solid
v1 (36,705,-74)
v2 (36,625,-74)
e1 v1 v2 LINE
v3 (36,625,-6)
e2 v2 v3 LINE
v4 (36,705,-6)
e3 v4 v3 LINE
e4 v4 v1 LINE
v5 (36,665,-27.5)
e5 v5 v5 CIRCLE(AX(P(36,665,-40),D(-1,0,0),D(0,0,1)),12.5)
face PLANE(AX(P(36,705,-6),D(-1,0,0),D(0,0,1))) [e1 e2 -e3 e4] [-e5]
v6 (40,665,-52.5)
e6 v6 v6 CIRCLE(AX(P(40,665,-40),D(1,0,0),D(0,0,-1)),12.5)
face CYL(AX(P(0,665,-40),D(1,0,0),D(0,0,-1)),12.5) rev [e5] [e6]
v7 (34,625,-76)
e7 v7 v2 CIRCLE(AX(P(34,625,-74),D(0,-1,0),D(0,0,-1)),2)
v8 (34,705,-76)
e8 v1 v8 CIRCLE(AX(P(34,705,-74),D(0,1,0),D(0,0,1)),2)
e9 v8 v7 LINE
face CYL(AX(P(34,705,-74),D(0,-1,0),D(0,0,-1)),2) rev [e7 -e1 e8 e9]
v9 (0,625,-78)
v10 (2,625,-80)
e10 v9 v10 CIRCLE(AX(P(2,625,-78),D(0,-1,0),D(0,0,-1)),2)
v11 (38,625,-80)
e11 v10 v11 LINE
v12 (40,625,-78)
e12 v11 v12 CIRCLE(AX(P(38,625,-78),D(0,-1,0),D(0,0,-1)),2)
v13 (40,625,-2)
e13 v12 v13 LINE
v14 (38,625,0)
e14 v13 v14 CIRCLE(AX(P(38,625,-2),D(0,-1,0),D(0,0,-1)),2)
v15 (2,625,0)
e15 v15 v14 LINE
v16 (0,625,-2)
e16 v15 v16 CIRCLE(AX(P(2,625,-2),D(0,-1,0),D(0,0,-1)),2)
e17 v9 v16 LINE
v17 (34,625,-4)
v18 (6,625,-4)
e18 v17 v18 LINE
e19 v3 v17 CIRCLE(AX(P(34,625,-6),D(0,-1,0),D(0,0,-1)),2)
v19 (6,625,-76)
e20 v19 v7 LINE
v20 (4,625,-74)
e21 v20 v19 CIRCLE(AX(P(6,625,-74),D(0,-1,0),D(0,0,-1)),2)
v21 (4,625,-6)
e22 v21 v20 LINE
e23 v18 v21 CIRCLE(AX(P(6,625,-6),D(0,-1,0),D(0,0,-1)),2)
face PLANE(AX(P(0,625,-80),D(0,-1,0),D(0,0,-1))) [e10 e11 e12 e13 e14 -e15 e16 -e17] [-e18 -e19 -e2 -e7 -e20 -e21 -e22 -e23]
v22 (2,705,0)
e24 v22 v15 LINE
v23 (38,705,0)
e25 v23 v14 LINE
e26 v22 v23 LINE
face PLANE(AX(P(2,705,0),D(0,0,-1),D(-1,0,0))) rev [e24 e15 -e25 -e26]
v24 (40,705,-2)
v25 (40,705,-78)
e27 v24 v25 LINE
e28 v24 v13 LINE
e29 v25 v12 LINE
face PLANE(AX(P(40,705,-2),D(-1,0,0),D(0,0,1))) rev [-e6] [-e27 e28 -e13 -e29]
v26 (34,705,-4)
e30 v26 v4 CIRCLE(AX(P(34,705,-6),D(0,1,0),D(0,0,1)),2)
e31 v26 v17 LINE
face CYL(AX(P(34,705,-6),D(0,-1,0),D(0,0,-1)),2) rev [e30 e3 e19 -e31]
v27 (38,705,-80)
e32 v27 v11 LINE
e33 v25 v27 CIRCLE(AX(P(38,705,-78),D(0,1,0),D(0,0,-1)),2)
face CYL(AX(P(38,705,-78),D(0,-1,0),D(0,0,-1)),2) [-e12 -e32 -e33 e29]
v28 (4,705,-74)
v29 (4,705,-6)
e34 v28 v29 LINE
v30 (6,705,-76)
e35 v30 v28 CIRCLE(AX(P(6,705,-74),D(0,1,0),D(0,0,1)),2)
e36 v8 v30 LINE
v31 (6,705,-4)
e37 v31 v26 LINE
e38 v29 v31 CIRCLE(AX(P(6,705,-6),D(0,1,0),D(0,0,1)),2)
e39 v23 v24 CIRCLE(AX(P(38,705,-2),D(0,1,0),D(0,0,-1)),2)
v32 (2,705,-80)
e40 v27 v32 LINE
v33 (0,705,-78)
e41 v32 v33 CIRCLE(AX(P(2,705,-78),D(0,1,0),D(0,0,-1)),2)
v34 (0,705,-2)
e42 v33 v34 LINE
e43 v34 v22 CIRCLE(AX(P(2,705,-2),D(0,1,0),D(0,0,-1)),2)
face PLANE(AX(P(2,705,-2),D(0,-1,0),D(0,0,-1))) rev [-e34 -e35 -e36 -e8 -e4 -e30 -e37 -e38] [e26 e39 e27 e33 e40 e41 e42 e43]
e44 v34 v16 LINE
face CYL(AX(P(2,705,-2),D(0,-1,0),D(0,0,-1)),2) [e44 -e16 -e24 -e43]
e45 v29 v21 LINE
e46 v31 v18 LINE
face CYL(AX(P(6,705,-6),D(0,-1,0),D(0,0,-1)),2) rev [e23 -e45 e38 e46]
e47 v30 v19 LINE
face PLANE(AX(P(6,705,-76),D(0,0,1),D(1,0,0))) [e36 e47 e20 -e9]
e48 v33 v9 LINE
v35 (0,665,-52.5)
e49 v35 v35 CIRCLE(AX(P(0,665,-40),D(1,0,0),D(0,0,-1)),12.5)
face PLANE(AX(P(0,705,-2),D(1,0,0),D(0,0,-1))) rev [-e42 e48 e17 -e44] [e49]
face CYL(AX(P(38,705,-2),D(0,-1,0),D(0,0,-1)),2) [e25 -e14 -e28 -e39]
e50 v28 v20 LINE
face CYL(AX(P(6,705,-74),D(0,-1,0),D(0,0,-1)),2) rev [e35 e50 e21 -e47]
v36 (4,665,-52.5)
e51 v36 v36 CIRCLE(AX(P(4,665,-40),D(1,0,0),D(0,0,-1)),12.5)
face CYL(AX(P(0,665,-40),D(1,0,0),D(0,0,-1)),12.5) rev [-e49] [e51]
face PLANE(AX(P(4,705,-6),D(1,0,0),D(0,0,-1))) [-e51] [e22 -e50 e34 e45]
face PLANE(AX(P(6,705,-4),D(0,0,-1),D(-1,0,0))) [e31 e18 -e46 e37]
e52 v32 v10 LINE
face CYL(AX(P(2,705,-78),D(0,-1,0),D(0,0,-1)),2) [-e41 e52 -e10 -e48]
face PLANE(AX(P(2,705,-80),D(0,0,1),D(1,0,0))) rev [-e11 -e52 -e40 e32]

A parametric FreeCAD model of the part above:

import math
import FreeCAD as App
import Part
import Sketcher

V = App.Vector


def add_polygon(sketch, points):
    """Adds a closed chain of lines whose ends are joined by coincident constraints."""
    first, n = sketch.GeometryCount, len(points)
    for a, b in zip(points, points[1:] + points[:1]):
        sketch.addGeometry(Part.LineSegment(App.Vector(*a, 0), App.Vector(*b, 0)), False)
    for i in range(n):
        sketch.addConstraint(Sketcher.Constraint("Coincident", first + i, 2, first + (i + 1) % n, 1))

doc = App.newDocument("Part")
params = doc.addObject("Spreadsheet::Sheet", "Params")
for row, (alias, value) in enumerate([
    ("sketch1_radius", "2 mm"),
    ("sketch1_width", "36 mm"),
    ("sketch1_width2", "28 mm"),
    ("sketch1_height", "76 mm"),
    ("sketch1_height2", "68 mm"),
    ("pad1_length", "705 mm"),
    ("sketch2_diameter", "25 mm"),
    ("sketch2_diameter2", "20.25 mm"),
    ("sketch3_width", "40 mm"),
    ("sketch3_height", "80 mm"),
], start=1):
    params.set(f"A{row}", alias)
    params.set(f"B{row}", "=" + value)
    params.setAlias(f"B{row}", alias)

body = doc.addObject("PartDesign::Body", "Body")

# Sketch on XZ plane
sketch1 = body.newObject("Sketcher::SketchObject", "Sketch")
sketch1.AttachmentSupport = (doc.getObject("XZ_Plane"), [""])
sketch1.MapMode = "FlatFace"
sketch1.addGeometry(Part.LineSegment(V(2, 0, 0), V(38, 0, 0)), False)
sketch1.addGeometry(Part.ArcOfCircle(Part.Circle(V(38, -2, 0), V(0, 0, 1), 2), math.radians(0), math.radians(90)), False)
sketch1.addGeometry(Part.LineSegment(V(40, -2, 0), V(40, -78, 0)), False)
sketch1.addGeometry(Part.ArcOfCircle(Part.Circle(V(38, -78, 0), V(0, 0, 1), 2), math.radians(-90), math.radians(0)), False)
sketch1.addGeometry(Part.LineSegment(V(38, -80, 0), V(2, -80, 0)), False)
sketch1.addGeometry(Part.ArcOfCircle(Part.Circle(V(2, -78, 0), V(0, 0, 1), 2), math.radians(-180), math.radians(-90)), False)
sketch1.addGeometry(Part.LineSegment(V(0, -78, 0), V(0, -2, 0)), False)
sketch1.addGeometry(Part.ArcOfCircle(Part.Circle(V(2, -2, 0), V(0, 0, 1), 2), math.radians(90), math.radians(180)), False)
sketch1.addGeometry(Part.LineSegment(V(34, -4, 0), V(6, -4, 0)), False)
sketch1.addGeometry(Part.ArcOfCircle(Part.Circle(V(6, -6, 0), V(0, 0, 1), 2), math.radians(90), math.radians(180)), False)
sketch1.addGeometry(Part.LineSegment(V(4, -6, 0), V(4, -74, 0)), False)
sketch1.addGeometry(Part.ArcOfCircle(Part.Circle(V(6, -74, 0), V(0, 0, 1), 2), math.radians(-180), math.radians(-90)), False)
sketch1.addGeometry(Part.LineSegment(V(6, -76, 0), V(34, -76, 0)), False)
sketch1.addGeometry(Part.ArcOfCircle(Part.Circle(V(34, -74, 0), V(0, 0, 1), 2), math.radians(-90), math.radians(0)), False)
sketch1.addGeometry(Part.LineSegment(V(36, -74, 0), V(36, -6, 0)), False)
sketch1.addGeometry(Part.ArcOfCircle(Part.Circle(V(34, -6, 0), V(0, 0, 1), 2), math.radians(0), math.radians(90)), False)
sketch1.addConstraint(Sketcher.Constraint("Tangent", 0, 2, 1, 2))
sketch1.addConstraint(Sketcher.Constraint("Tangent", 1, 1, 2, 1))
sketch1.addConstraint(Sketcher.Constraint("Tangent", 2, 2, 3, 2))
sketch1.addConstraint(Sketcher.Constraint("Tangent", 3, 1, 4, 1))
sketch1.addConstraint(Sketcher.Constraint("Tangent", 4, 2, 5, 2))
sketch1.addConstraint(Sketcher.Constraint("Tangent", 5, 1, 6, 1))
sketch1.addConstraint(Sketcher.Constraint("Tangent", 6, 2, 7, 2))
sketch1.addConstraint(Sketcher.Constraint("Tangent", 7, 1, 0, 1))
sketch1.addConstraint(Sketcher.Constraint("Tangent", 8, 2, 9, 1))
sketch1.addConstraint(Sketcher.Constraint("Tangent", 9, 2, 10, 1))
sketch1.addConstraint(Sketcher.Constraint("Tangent", 10, 2, 11, 1))
sketch1.addConstraint(Sketcher.Constraint("Tangent", 11, 2, 12, 1))
sketch1.addConstraint(Sketcher.Constraint("Tangent", 12, 2, 13, 1))
sketch1.addConstraint(Sketcher.Constraint("Tangent", 13, 2, 14, 1))
sketch1.addConstraint(Sketcher.Constraint("Tangent", 14, 2, 15, 1))
sketch1.addConstraint(Sketcher.Constraint("Tangent", 15, 2, 8, 1))
sketch1.addConstraint(Sketcher.Constraint("Horizontal", 0))
sketch1.addConstraint(Sketcher.Constraint("Vertical", 2))
sketch1.addConstraint(Sketcher.Constraint("Horizontal", 4))
sketch1.addConstraint(Sketcher.Constraint("Vertical", 6))
sketch1.addConstraint(Sketcher.Constraint("Horizontal", 8))
sketch1.addConstraint(Sketcher.Constraint("Vertical", 10))
sketch1.addConstraint(Sketcher.Constraint("Horizontal", 12))
sketch1.addConstraint(Sketcher.Constraint("Vertical", 14))
sketch1.addConstraint(Sketcher.Constraint("Equal", 1, 3))
sketch1.addConstraint(Sketcher.Constraint("Equal", 3, 5))
sketch1.addConstraint(Sketcher.Constraint("Equal", 5, 7))
sketch1.addConstraint(Sketcher.Constraint("Equal", 7, 9))
sketch1.addConstraint(Sketcher.Constraint("Equal", 9, 11))
sketch1.addConstraint(Sketcher.Constraint("Equal", 11, 13))
sketch1.addConstraint(Sketcher.Constraint("Equal", 13, 15))
sketch1.addConstraint(Sketcher.Constraint("PointOnObject", 0, 2, -1))
sketch1.addConstraint(Sketcher.Constraint("PointOnObject", 5, 1, -2))
sketch1.addConstraint(Sketcher.Constraint("Radius", 1, 2.0))
sketch1.addConstraint(Sketcher.Constraint("DistanceX", 0, 1, 0, 2, 36.0))
sketch1.addConstraint(Sketcher.Constraint("DistanceX", 8, 2, 8, 1, 28.0))
sketch1.addConstraint(Sketcher.Constraint("DistanceY", 2, 2, 2, 1, 76.0))
sketch1.addConstraint(Sketcher.Constraint("DistanceY", 10, 2, 10, 1, 68.0))
sketch1.addConstraint(Sketcher.Constraint("DistanceX", -1, 1, 9, 3, 6.0))
sketch1.addConstraint(Sketcher.Constraint("DistanceY", 9, 3, -1, 1, 6.0))
sketch1.setExpression("Constraints[33]", "Params.sketch1_radius")
sketch1.setExpression("Constraints[34]", "Params.sketch1_width")
sketch1.setExpression("Constraints[35]", "Params.sketch1_width2")
sketch1.setExpression("Constraints[36]", "Params.sketch1_height")
sketch1.setExpression("Constraints[37]", "Params.sketch1_height2")
pad1 = body.newObject("PartDesign::Pad", "Pad")
pad1.Profile = sketch1
pad1.setExpression("Length", "Params.pad1_length")
pad1.Reversed = True

# Sketch on YZ plane
sketch2 = body.newObject("Sketcher::SketchObject", "Sketch001")
sketch2.AttachmentSupport = (doc.getObject("YZ_Plane"), [""])
sketch2.MapMode = "FlatFace"
sketch2.AttachmentOffset = App.Placement(V(0, 0, 40), App.Rotation())
sketch2.addGeometry(Part.Circle(V(90, -40, 0), V(0, 0, 1), 10), False)
sketch2.addGeometry(Part.Circle(V(665, -40, 0), V(0, 0, 1), 12), False)
sketch2.addConstraint(Sketcher.Constraint("Horizontal", 0, 3, 1, 3))
sketch2.addConstraint(Sketcher.Constraint("Diameter", 1, 25.0))
sketch2.addConstraint(Sketcher.Constraint("Diameter", 0, 20.25))
sketch2.addConstraint(Sketcher.Constraint("DistanceX", -1, 1, 0, 3, 90.0))
sketch2.addConstraint(Sketcher.Constraint("DistanceY", 0, 3, -1, 1, 40.0))
sketch2.addConstraint(Sketcher.Constraint("DistanceX", -1, 1, 1, 3, 665.0))
sketch2.setExpression("Constraints[1]", "Params.sketch2_diameter")
sketch2.setExpression("Constraints[2]", "Params.sketch2_diameter2")
pocket1 = body.newObject("PartDesign::Pocket", "Pocket")
pocket1.Profile = sketch2
pocket1.Type = "ThroughAll"

# Sketch on XY plane
sketch3 = body.newObject("Sketcher::SketchObject", "Sketch002")
sketch3.AttachmentSupport = (doc.getObject("XY_Plane"), [""])
sketch3.MapMode = "FlatFace"
add_polygon(sketch3, [(-294, 865), (-294, -34), (324, -34), (324, 865)])  # lines 0-3
add_polygon(sketch3, [(40, 625), (0, 625), (0, 705), (40, 705)])  # lines 4-7
sketch3.addConstraint(Sketcher.Constraint("Vertical", 0))
sketch3.addConstraint(Sketcher.Constraint("Horizontal", 1))
sketch3.addConstraint(Sketcher.Constraint("Vertical", 2))
sketch3.addConstraint(Sketcher.Constraint("Horizontal", 3))
sketch3.addConstraint(Sketcher.Constraint("Horizontal", 4))
sketch3.addConstraint(Sketcher.Constraint("Vertical", 5))
sketch3.addConstraint(Sketcher.Constraint("Horizontal", 6))
sketch3.addConstraint(Sketcher.Constraint("Vertical", 7))
sketch3.addConstraint(Sketcher.Constraint("PointOnObject", 4, 2, -2))
sketch3.addConstraint(Sketcher.Constraint("DistanceX", 4, 2, 4, 1, 40.0))
sketch3.addConstraint(Sketcher.Constraint("DistanceY", 5, 1, 5, 2, 80.0))
sketch3.addConstraint(Sketcher.Constraint("DistanceY", -1, 1, 4, 2, 625.0))
sketch3.addConstraint(Sketcher.Constraint("DistanceX", 1, 1, 1, 2, 618.270478))
sketch3.addConstraint(Sketcher.Constraint("DistanceY", 0, 2, 0, 1, 899.840555))
sketch3.addConstraint(Sketcher.Constraint("DistanceX", 0, 2, -1, 1, 293.79466))
sketch3.addConstraint(Sketcher.Constraint("DistanceY", 0, 2, -1, 1, 34.463067))
sketch3.setExpression("Constraints[17]", "Params.sketch3_width")
sketch3.setExpression("Constraints[18]", "Params.sketch3_height")
pocket2 = body.newObject("PartDesign::Pocket", "Pocket001")
pocket2.Profile = sketch3
pocket2.Type = "ThroughAll"

doc.recompute()
